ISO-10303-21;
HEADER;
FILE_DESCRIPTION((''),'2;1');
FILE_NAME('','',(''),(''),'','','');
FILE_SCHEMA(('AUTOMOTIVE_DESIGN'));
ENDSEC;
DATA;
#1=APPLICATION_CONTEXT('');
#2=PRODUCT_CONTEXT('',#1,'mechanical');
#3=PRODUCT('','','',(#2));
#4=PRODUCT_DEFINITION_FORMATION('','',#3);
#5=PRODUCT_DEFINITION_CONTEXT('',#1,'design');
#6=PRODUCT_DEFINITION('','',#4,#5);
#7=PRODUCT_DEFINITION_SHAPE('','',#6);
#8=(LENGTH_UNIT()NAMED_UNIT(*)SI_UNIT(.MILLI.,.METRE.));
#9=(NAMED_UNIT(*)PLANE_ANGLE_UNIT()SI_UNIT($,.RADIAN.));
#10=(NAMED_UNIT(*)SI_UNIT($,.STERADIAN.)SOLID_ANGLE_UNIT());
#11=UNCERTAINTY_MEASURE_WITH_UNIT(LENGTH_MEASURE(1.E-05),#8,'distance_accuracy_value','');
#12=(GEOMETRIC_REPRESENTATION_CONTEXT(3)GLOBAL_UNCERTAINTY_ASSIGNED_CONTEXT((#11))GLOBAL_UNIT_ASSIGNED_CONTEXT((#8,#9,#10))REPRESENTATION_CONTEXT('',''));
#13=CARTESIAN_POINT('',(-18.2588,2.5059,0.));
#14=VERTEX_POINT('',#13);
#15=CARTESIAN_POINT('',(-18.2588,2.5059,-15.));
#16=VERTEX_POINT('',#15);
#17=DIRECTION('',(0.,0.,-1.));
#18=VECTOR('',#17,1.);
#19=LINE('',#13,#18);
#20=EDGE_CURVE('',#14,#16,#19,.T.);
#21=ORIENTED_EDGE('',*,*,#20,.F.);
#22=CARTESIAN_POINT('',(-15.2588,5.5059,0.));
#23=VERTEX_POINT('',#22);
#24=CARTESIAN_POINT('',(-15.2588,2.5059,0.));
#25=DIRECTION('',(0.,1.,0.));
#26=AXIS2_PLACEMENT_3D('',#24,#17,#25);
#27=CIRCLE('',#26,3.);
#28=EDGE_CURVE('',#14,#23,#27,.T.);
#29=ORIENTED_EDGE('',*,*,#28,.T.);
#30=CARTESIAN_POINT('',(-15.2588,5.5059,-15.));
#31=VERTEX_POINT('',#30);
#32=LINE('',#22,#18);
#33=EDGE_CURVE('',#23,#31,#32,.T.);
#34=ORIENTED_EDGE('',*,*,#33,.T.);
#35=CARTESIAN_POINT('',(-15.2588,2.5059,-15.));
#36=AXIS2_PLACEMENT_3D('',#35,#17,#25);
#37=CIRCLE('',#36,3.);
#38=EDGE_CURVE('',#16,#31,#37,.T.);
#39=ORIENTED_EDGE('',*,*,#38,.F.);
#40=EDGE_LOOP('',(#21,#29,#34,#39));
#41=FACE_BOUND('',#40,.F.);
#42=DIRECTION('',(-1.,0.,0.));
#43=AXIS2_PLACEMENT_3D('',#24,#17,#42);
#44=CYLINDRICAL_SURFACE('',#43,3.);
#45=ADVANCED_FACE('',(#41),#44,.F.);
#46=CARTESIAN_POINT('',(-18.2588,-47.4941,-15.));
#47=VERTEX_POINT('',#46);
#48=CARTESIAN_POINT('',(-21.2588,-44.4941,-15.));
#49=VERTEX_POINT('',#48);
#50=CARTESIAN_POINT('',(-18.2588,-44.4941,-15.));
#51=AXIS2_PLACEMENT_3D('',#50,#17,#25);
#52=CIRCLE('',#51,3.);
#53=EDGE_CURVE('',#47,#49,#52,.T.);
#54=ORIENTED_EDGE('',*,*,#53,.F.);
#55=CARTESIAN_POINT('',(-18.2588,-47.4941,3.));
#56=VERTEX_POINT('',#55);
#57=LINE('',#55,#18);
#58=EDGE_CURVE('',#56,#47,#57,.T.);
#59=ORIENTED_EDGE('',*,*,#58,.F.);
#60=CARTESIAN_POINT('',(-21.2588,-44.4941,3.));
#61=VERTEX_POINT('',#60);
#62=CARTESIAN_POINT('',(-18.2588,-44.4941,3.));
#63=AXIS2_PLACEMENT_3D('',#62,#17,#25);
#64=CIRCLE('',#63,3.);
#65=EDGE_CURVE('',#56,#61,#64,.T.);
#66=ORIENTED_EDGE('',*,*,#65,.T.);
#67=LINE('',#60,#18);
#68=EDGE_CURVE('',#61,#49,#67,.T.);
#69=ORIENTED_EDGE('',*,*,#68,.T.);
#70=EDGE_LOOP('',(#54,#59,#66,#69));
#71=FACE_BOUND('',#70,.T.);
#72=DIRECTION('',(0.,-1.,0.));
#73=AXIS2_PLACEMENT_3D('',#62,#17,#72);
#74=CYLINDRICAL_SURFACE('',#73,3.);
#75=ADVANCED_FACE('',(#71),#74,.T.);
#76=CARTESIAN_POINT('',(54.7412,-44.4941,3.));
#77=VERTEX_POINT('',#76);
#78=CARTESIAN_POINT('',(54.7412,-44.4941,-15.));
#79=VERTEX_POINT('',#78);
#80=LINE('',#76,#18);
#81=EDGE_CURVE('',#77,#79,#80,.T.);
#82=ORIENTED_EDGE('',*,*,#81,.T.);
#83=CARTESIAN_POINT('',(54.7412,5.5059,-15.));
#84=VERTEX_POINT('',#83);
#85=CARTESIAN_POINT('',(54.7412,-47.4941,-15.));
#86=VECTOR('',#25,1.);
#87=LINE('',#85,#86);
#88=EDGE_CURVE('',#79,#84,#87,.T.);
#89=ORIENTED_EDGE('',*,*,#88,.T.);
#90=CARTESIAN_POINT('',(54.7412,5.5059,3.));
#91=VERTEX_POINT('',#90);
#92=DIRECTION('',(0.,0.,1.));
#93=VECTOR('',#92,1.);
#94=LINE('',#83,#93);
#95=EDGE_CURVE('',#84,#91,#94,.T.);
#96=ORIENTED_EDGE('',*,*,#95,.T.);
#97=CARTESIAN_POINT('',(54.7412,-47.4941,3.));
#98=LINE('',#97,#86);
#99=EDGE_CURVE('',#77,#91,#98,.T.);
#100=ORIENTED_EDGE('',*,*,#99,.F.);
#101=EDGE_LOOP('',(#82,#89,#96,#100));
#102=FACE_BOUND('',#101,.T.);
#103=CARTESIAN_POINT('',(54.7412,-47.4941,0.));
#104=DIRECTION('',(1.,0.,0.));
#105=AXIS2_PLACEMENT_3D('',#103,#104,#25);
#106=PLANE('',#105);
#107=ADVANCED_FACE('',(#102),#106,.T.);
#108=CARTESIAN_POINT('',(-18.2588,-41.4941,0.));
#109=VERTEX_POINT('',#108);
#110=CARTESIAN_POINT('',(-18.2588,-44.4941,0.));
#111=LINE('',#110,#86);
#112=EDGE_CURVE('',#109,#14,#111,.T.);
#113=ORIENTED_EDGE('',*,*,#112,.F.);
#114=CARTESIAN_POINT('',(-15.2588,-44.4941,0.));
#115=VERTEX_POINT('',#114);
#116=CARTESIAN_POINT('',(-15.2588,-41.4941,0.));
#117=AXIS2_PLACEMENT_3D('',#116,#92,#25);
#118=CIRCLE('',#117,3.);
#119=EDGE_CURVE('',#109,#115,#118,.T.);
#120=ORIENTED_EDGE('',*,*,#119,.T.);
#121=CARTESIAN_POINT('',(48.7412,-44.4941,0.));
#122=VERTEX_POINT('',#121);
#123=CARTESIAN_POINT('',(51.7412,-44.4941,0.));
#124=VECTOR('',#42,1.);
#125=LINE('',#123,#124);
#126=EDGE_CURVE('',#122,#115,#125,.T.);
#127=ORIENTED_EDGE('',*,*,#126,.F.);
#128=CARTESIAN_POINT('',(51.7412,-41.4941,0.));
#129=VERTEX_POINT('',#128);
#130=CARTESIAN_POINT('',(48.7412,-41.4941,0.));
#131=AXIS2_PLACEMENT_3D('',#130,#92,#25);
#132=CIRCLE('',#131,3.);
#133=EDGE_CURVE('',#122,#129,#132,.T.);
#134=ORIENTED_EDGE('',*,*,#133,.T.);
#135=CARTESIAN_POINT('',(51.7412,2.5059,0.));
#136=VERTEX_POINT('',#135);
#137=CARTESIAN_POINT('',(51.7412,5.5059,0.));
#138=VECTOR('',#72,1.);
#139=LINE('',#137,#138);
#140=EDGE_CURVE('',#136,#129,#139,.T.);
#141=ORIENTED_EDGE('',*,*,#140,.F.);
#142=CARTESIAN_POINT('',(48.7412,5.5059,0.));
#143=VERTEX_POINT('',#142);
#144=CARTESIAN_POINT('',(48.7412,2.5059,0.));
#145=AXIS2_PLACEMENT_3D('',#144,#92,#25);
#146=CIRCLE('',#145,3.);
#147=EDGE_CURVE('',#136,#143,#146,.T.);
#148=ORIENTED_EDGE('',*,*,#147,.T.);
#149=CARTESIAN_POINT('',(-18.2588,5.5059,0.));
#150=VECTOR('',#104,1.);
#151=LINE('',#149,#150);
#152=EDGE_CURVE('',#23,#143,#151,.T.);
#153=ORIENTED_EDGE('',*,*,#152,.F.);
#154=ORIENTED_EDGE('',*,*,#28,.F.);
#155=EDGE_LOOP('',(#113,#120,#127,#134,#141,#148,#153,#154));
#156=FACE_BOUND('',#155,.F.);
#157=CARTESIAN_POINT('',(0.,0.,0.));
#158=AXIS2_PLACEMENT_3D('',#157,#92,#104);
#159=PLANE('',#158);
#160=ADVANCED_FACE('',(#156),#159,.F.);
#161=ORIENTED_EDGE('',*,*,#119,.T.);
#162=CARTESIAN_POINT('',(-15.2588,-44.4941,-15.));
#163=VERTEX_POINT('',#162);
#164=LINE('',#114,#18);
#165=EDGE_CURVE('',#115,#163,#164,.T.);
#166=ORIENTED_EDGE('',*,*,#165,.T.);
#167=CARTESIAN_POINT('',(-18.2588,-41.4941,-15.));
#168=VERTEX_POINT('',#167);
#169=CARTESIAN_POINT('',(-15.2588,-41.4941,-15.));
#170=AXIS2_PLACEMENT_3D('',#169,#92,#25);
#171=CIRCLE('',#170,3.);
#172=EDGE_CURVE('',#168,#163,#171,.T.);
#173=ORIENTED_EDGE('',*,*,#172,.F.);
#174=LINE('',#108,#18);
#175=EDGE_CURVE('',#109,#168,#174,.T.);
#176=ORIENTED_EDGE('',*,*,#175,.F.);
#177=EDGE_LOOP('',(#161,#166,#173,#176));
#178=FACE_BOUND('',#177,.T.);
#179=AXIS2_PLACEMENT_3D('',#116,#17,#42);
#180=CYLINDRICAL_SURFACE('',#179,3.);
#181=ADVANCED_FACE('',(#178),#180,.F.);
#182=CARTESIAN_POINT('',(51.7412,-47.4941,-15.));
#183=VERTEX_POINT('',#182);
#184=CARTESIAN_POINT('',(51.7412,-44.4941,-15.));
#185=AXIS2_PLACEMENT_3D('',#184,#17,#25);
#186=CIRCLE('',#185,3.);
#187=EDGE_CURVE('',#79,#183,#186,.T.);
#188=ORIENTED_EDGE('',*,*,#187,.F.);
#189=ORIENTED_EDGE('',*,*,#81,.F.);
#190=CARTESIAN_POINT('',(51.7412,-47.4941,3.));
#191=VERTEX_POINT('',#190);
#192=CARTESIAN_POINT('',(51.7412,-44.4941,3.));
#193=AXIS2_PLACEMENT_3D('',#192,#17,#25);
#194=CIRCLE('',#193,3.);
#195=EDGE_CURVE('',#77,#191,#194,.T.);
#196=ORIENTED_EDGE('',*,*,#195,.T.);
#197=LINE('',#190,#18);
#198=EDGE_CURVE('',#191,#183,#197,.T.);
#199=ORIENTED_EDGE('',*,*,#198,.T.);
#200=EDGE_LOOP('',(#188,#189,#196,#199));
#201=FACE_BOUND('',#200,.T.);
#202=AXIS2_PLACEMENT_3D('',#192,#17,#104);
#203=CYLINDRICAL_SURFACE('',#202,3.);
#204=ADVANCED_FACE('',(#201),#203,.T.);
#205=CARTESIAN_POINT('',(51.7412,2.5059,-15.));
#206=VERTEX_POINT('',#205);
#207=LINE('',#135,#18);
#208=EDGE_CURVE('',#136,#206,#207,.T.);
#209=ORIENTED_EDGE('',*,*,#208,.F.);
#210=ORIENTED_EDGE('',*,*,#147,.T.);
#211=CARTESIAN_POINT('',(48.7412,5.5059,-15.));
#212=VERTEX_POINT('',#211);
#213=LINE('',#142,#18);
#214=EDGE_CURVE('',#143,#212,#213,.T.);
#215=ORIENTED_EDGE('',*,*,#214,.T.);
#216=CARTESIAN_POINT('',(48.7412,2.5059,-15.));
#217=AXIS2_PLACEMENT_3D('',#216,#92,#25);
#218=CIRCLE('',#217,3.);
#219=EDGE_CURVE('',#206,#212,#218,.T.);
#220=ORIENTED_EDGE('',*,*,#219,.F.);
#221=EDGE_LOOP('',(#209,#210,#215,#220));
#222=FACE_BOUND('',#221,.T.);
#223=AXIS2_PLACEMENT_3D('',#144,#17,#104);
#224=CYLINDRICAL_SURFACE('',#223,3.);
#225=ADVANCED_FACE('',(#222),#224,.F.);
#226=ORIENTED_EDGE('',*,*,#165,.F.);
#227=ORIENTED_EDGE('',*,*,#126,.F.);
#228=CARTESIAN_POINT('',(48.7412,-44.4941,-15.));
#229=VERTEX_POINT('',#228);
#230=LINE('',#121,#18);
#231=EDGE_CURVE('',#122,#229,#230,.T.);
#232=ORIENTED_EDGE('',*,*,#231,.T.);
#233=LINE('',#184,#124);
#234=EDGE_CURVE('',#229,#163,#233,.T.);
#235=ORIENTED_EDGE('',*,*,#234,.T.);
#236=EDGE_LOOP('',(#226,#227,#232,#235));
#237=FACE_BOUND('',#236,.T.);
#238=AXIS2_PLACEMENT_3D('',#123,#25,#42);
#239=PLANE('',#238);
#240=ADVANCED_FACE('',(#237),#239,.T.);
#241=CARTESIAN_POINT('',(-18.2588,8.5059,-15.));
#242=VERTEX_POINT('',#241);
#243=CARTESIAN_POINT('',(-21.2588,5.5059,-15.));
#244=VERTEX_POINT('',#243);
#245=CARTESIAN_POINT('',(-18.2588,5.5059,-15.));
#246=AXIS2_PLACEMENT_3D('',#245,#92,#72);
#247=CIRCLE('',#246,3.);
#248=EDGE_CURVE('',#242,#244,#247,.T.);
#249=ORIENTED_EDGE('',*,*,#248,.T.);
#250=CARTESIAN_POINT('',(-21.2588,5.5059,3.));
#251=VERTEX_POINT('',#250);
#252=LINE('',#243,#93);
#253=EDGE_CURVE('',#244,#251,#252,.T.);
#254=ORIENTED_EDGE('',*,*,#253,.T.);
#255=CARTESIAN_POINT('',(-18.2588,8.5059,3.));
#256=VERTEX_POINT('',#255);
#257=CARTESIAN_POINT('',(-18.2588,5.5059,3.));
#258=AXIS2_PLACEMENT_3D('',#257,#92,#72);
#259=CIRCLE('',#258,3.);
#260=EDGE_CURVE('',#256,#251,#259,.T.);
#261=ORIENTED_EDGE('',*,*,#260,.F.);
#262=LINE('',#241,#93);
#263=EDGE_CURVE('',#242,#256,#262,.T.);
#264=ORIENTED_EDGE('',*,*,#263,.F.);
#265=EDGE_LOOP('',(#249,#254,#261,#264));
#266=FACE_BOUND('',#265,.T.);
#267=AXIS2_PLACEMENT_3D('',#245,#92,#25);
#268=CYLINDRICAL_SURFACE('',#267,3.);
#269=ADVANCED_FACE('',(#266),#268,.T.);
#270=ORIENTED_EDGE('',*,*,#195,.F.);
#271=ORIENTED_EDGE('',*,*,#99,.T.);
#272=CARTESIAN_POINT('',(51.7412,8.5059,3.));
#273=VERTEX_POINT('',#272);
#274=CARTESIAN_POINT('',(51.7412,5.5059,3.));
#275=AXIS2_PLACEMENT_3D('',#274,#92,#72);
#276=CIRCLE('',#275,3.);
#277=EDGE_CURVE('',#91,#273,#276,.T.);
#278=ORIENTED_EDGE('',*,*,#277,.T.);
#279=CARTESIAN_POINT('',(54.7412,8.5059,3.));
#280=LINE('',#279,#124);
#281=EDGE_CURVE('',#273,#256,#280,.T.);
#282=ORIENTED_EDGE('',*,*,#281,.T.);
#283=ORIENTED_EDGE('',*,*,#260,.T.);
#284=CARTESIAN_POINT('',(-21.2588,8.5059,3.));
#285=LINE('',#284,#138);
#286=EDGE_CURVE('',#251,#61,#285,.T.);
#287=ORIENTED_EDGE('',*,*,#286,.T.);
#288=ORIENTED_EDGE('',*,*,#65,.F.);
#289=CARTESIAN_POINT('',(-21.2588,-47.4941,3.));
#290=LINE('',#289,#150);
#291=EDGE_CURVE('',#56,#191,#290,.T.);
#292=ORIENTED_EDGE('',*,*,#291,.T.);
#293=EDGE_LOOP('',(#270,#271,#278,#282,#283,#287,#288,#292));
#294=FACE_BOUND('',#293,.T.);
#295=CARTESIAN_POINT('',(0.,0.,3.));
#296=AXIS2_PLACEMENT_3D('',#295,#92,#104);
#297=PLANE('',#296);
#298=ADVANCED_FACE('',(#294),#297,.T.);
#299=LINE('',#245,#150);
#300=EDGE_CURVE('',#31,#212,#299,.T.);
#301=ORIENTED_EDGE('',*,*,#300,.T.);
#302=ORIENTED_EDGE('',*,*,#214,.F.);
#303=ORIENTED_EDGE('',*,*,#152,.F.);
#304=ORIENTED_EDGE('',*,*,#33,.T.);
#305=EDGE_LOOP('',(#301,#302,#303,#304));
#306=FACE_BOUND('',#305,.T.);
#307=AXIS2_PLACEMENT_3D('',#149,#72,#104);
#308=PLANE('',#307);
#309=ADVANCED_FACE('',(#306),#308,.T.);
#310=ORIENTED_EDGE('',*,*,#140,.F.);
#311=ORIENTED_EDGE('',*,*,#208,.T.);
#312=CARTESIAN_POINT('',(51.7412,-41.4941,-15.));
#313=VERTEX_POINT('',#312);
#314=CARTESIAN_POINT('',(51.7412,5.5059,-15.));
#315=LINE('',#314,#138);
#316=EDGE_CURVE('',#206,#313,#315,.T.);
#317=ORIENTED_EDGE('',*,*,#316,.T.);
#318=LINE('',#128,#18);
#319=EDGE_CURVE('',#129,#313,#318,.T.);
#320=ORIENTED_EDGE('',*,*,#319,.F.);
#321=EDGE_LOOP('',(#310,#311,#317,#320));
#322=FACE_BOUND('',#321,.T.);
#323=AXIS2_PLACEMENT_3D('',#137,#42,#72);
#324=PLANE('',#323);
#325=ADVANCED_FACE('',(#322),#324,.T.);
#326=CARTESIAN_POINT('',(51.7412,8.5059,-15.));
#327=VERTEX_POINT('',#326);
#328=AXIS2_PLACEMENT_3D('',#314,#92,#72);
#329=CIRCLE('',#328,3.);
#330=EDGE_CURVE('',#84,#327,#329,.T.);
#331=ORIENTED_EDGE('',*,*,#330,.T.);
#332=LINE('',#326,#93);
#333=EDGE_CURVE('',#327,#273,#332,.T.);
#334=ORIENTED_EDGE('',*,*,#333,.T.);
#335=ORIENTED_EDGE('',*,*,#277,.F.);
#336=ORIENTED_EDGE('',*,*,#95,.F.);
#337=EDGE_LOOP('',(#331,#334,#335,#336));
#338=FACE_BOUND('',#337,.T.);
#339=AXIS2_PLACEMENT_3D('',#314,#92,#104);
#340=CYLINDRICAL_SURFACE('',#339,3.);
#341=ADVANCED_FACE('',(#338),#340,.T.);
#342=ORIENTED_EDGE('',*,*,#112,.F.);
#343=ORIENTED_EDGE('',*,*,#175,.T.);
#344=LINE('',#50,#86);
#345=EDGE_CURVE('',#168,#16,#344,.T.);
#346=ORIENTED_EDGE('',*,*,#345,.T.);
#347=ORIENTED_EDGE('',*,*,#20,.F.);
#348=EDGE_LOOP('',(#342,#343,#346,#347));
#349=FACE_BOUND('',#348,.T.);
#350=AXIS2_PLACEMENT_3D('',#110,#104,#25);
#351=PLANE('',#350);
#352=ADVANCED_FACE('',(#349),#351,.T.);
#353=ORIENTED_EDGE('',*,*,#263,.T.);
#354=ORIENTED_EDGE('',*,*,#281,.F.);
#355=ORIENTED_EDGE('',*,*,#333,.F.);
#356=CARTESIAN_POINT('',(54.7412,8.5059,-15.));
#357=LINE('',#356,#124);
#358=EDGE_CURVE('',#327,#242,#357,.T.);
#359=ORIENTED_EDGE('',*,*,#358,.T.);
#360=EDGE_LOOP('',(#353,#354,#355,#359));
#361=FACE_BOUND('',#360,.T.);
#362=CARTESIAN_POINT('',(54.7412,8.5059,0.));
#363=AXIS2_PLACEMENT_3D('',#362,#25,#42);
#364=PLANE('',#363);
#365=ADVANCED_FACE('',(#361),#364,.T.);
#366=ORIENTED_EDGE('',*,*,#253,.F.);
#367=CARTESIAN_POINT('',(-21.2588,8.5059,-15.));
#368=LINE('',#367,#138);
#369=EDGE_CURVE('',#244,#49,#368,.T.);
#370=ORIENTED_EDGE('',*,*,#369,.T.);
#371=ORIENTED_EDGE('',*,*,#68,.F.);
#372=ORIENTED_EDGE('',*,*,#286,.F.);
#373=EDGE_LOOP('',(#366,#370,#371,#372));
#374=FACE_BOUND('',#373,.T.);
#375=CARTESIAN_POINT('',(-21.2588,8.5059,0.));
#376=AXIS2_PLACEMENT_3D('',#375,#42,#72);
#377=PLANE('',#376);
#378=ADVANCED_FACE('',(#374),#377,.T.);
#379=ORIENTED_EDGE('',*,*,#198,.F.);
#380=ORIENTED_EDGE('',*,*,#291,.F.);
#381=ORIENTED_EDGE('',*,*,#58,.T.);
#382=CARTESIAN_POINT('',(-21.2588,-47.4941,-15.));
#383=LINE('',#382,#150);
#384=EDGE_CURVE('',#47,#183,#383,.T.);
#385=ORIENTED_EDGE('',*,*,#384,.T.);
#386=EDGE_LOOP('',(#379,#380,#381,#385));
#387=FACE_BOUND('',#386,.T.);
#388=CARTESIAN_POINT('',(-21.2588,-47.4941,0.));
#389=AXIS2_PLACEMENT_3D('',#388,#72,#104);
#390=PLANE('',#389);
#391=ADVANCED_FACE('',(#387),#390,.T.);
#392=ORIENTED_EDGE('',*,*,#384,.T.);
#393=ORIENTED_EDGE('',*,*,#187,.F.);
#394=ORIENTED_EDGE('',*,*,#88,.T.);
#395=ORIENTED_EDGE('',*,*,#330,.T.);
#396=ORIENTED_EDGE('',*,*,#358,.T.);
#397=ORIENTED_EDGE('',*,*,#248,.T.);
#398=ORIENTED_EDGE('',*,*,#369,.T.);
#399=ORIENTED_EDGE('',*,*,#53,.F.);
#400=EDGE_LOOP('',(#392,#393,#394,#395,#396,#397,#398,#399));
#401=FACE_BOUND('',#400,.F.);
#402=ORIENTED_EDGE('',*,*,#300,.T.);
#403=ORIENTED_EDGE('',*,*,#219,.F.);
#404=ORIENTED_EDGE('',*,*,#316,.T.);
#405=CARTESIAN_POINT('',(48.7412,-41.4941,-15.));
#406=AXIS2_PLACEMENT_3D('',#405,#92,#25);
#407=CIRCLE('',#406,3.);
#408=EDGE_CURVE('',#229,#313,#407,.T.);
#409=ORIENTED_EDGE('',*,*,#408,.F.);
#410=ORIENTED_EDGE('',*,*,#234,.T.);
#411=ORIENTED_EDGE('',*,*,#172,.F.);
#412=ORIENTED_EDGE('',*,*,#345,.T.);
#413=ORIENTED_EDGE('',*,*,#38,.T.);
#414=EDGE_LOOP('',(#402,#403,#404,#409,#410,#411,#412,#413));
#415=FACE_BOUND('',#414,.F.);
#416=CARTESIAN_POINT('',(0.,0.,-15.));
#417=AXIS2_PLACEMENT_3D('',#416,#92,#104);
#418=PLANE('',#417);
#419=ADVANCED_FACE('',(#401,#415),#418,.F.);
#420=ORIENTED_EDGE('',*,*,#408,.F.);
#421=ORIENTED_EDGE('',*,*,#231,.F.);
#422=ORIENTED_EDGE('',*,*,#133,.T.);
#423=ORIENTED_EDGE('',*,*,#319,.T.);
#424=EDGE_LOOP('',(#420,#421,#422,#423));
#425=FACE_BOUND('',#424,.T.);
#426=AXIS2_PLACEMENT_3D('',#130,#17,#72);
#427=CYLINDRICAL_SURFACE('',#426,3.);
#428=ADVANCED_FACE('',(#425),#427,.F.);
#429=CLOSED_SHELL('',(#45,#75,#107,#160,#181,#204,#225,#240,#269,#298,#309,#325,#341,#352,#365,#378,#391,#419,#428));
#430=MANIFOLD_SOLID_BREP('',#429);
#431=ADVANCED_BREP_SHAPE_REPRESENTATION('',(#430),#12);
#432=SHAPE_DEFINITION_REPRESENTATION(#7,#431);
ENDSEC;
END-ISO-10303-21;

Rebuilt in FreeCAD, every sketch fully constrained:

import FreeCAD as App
import Part
import Sketcher
Q = App.Units.Quantity


def edges_at(feature, points):
    """Names of the edges that pass closest to the given points."""
    edges = feature.Shape.Edges
    near = lambda p: min(range(len(edges)), key=lambda i: edges[i].distToShape(Part.Vertex(*p))[0])
    return sorted({f"Edge{near(p) + 1}" for p in points})


def add_polygon(sketch, points):
    """Adds a closed chain of lines whose ends are joined by coincident constraints."""
    first, n = sketch.GeometryCount, len(points)
    for a, b in zip(points, points[1:] + points[:1]):
        sketch.addGeometry(Part.LineSegment(App.Vector(*a, 0), App.Vector(*b, 0)), False)
    for i in range(n):
        sketch.addConstraint(Sketcher.Constraint("Coincident", first + i, 2, first + (i + 1) % n, 1))

doc = App.newDocument("Part")
body = doc.addObject("PartDesign::Body", "Body")

sketch1 = doc.addObject("Sketcher::SketchObject", "Sketch")
body.addObject(sketch1)
sketch1.AttachmentSupport = (doc.XY_Plane, [""])
sketch1.MapMode = "FlatFace"
add_polygon(sketch1, [(55, -47), (55, 9), (-21, 9), (-21, -47)])
sketch1.addConstraint([
    Sketcher.Constraint("Vertical", 0),
    Sketcher.Constraint("Horizontal", 1),
    Sketcher.Constraint("Vertical", 2),
    Sketcher.Constraint("Horizontal", 3),
    Sketcher.Constraint("DistanceX", 1, 2, 1, 1, Q("76 mm")),
    Sketcher.Constraint("DistanceY", 0, 1, 0, 2, Q("56 mm")),
    Sketcher.Constraint("DistanceY", -1, 1, 0, 2, Q("8.506 mm")),
    Sketcher.Constraint("DistanceX", -1, 1, 0, 2, Q("54.7412 mm")),
])
pad1 = doc.addObject("PartDesign::Pad", "Pad")
body.addObject(pad1)
pad1.Profile = sketch1
pad1.Length = 3

sketch2 = doc.addObject("Sketcher::SketchObject", "Sketch001")
body.addObject(sketch2)
sketch2.AttachmentSupport = (doc.XY_Plane, [""])
sketch2.MapMode = "FlatFace"
add_polygon(sketch2, [(55, -47), (55, 9), (-21, 9), (-21, -47)])
add_polygon(sketch2, [(-18, -44), (-18, 6), (52, 6), (52, -44)])
sketch2.addConstraint([
    Sketcher.Constraint("Vertical", 0),
    Sketcher.Constraint("Horizontal", 1),
    Sketcher.Constraint("Vertical", 2),
    Sketcher.Constraint("Horizontal", 3),
    Sketcher.Constraint("Vertical", 4),
    Sketcher.Constraint("Horizontal", 5),
    Sketcher.Constraint("Vertical", 6),
    Sketcher.Constraint("Horizontal", 7),
    Sketcher.Constraint("DistanceX", 5, 1, 5, 2, Q("70 mm")),
    Sketcher.Constraint("DistanceY", 4, 1, 4, 2, Q("50 mm")),
    Sketcher.Constraint("DistanceX", 1, 2, 4, 2, Q("3 mm")),
    Sketcher.Constraint("DistanceY", 4, 2, 1, 2, Q("3 mm")),
    Sketcher.Constraint("DistanceX", 5, 2, 0, 2, Q("3 mm")),
    Sketcher.Constraint("DistanceY", 3, 2, 6, 2, Q("3 mm")),
    Sketcher.Constraint("DistanceY", -1, 1, 0, 2, Q("8.506 mm")),
    Sketcher.Constraint("DistanceX", -1, 1, 0, 2, Q("54.7412 mm")),
])
pad2 = doc.addObject("PartDesign::Pad", "Pad001")
body.addObject(pad2)
pad2.Profile = sketch2
pad2.Length = 15
pad2.Reversed = True
doc.recompute()

fillet = doc.addObject("PartDesign::Fillet", "Fillet")
body.addObject(fillet)
fillet.Base = (pad2, edges_at(pad2, [
    (51.741, -44.494, -7.5),
    (54.741, -47.494, -6),
    (54.741, 8.506, -6),
    (51.741, 5.506, -7.5),
    (-21.259, 8.506, -6),
    (-18.259, 5.506, -7.5),
    (-18.259, -44.494, -7.5),
    (-21.259, -47.494, -6),
]))
fillet.Radius = 3

doc.recompute()
